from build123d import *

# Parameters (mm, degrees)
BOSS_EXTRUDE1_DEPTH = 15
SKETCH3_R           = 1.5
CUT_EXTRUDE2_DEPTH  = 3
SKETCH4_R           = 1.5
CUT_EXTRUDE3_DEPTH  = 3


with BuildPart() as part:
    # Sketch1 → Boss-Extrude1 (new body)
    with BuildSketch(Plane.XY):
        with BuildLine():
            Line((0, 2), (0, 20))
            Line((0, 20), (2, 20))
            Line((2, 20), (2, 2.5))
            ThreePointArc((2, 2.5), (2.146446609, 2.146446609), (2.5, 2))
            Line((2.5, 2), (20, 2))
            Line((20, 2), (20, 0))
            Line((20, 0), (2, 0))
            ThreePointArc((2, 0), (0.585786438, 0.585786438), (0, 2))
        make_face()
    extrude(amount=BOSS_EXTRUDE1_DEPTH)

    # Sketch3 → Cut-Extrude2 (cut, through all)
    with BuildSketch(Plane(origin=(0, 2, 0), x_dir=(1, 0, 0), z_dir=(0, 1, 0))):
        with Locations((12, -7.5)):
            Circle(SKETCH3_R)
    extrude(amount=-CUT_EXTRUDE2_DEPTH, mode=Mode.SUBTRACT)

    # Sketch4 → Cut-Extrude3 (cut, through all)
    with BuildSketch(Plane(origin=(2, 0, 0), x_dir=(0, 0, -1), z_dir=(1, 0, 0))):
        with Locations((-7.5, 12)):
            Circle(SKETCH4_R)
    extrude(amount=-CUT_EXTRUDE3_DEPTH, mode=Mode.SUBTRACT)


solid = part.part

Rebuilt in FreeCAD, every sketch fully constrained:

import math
import FreeCAD as App
import Part
import Sketcher
from FreeCAD import Vector
Q = App.Units.Quantity

doc = App.newDocument("Part")
body = doc.addObject("PartDesign::Body", "Body")

sketch1 = doc.addObject("Sketcher::SketchObject", "Sketch")
body.addObject(sketch1)
sketch1.AttachmentSupport = (doc.XY_Plane, [""])
sketch1.MapMode = "FlatFace"
sketch1.addGeometry([
    Part.LineSegment(Vector(0, 20, 0), Vector(0, 2, 0)),
    Part.ArcOfCircle(Part.Circle(Vector(2, 2, 0), Vector(0, 0, 1), 2), math.radians(-180), math.radians(-90)),
    Part.LineSegment(Vector(2, 0, 0), Vector(20, 0, 0)),
    Part.LineSegment(Vector(20, 0, 0), Vector(20, 2, 0)),
    Part.LineSegment(Vector(20, 2, 0), Vector(2.5, 2, 0)),
    Part.ArcOfCircle(Part.Circle(Vector(2.5, 2.5, 0), Vector(0, 0, 1), 0.5), math.radians(180), math.radians(270)),
    Part.LineSegment(Vector(2, 2.5, 0), Vector(2, 20, 0)),
    Part.LineSegment(Vector(2, 20, 0), Vector(0, 20, 0)),
], False)
sketch1.addConstraint([
    Sketcher.Constraint("Tangent", 0, 2, 1, 1),
    Sketcher.Constraint("Tangent", 1, 2, 2, 1),
    Sketcher.Constraint("Coincident", 2, 2, 3, 1),
    Sketcher.Constraint("Coincident", 3, 2, 4, 1),
    Sketcher.Constraint("Tangent", 4, 2, 5, 2),
    Sketcher.Constraint("Tangent", 5, 1, 6, 1),
    Sketcher.Constraint("Coincident", 6, 2, 7, 1),
    Sketcher.Constraint("Coincident", 7, 2, 0, 1),
    Sketcher.Constraint("Vertical", 0),
    Sketcher.Constraint("Horizontal", 2),
    Sketcher.Constraint("Vertical", 3),
    Sketcher.Constraint("Horizontal", 4),
    Sketcher.Constraint("Vertical", 6),
    Sketcher.Constraint("Horizontal", 7),
    Sketcher.Constraint("PointOnObject", 0, 2, -2),
    Sketcher.Constraint("PointOnObject", 1, 2, -1),
    Sketcher.Constraint("Horizontal", 0, 2, 3, 2),
    Sketcher.Constraint("Vertical", 1, 2, 5, 1),
    Sketcher.Constraint("Equal", 2, 0),
    Sketcher.Constraint("Radius", 1, Q("2 mm")),
    Sketcher.Constraint("Radius", 5, Q("0.5 mm")),
    Sketcher.Constraint("DistanceX", 2, 1, 2, 2, Q("18 mm")),
])
pad1 = doc.addObject("PartDesign::Pad", "Pad")
body.addObject(pad1)
pad1.Profile = sketch1
pad1.Length = 15

sketch2 = doc.addObject("Sketcher::SketchObject", "Sketch001")
body.addObject(sketch2)
sketch2.AttachmentSupport = (doc.XZ_Plane, [""])
sketch2.MapMode = "FlatFace"
sketch2.AttachmentOffset = App.Placement(Vector(0, 0, -2), App.Rotation())
sketch2.addGeometry(Part.Circle(Vector(12, 7.5, 0), Vector(0, 0, 1), 1.5), False)
sketch2.addConstraint([
    Sketcher.Constraint("Diameter", 0, Q("3 mm")),
    Sketcher.Constraint("DistanceX", -1, 1, 0, 3, Q("12 mm")),
    Sketcher.Constraint("DistanceY", -1, 1, 0, 3, Q("7.5 mm")),
])
pocket1 = doc.addObject("PartDesign::Pocket", "Pocket")
body.addObject(pocket1)
pocket1.Profile = sketch2
pocket1.Type = "ThroughAll"
pocket1.Reversed = True

sketch3 = doc.addObject("Sketcher::SketchObject", "Sketch002")
body.addObject(sketch3)
sketch3.AttachmentSupport = (doc.YZ_Plane, [""])
sketch3.MapMode = "FlatFace"
sketch3.AttachmentOffset = App.Placement(Vector(0, 0, 2), App.Rotation())
sketch3.addGeometry(Part.Circle(Vector(12, 7.5, 0), Vector(0, 0, 1), 1.5), False)
sketch3.addConstraint([
    Sketcher.Constraint("Diameter", 0, Q("3 mm")),
    Sketcher.Constraint("DistanceX", -1, 1, 0, 3, Q("12 mm")),
    Sketcher.Constraint("DistanceY", -1, 1, 0, 3, Q("7.5 mm")),
])
pocket2 = doc.addObject("PartDesign::Pocket", "Pocket001")
body.addObject(pocket2)
pocket2.Profile = sketch3
pocket2.Type = "ThroughAll"

doc.recompute()
